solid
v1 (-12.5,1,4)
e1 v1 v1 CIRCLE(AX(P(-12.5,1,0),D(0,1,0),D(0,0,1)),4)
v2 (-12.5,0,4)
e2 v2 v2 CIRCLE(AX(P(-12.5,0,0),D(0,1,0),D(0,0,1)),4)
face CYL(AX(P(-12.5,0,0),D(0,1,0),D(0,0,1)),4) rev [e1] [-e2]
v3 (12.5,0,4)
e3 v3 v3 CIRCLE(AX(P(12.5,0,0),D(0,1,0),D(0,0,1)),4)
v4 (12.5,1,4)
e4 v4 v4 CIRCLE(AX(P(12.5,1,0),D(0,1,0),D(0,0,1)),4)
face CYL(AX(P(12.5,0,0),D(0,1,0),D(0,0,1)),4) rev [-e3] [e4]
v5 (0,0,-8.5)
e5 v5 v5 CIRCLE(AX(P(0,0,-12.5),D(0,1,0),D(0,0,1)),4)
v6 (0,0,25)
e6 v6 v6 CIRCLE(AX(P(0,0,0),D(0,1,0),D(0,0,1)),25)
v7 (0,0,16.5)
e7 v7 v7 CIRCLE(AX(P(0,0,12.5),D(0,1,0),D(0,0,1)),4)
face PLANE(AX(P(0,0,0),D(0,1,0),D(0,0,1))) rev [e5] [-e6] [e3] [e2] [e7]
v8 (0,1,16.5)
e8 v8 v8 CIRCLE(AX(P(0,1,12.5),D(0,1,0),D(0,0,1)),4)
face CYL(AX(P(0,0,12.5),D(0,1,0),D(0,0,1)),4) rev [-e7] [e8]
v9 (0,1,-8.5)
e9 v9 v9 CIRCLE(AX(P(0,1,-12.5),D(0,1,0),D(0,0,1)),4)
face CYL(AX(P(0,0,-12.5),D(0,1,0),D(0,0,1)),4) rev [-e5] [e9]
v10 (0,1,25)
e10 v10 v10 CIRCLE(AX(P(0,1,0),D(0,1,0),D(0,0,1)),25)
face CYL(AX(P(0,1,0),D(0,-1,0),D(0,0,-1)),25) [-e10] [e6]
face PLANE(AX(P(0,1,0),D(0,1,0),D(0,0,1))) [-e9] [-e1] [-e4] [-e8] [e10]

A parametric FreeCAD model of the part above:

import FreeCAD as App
import Part
import Sketcher

V = App.Vector
Q = App.Units.Quantity

doc = App.newDocument("Part")
body = doc.addObject("PartDesign::Body", "Body")

# Sketch on XZ plane
sketch1 = doc.addObject("Sketcher::SketchObject", "Sketch")
body.addObject(sketch1)
sketch1.AttachmentSupport = (doc.XZ_Plane, [""])
sketch1.MapMode = "FlatFace"
sketch1.addGeometry(Part.Circle(V(0, 0, 0), V(0, 0, 1), 25), False)
sketch1.addConstraint(Sketcher.Constraint("Coincident", 0, 3, -1, 1))
sketch1.addConstraint(Sketcher.Constraint("Diameter", 0, Q("50 mm")))
pad1 = doc.addObject("PartDesign::Pad", "Pad")
body.addObject(pad1)
pad1.Profile = sketch1
pad1.Length = 1
pad1.Reversed = True

# Sketch on XZ plane
sketch2 = doc.addObject("Sketcher::SketchObject", "Sketch001")
body.addObject(sketch2)
sketch2.AttachmentSupport = (doc.XZ_Plane, [""])
sketch2.MapMode = "FlatFace"
sketch2.AttachmentOffset = App.Placement(V(0, 0, -1), App.Rotation())
sketch2.addGeometry(Part.Circle(V(0, -12.5, 0), V(0, 0, 1), 4), False)
sketch2.addGeometry(Part.Circle(V(12.5, 0, 0), V(0, 0, 1), 4), False)
sketch2.addGeometry(Part.Circle(V(-12.5, 0, 0), V(0, 0, 1), 4), False)
sketch2.addGeometry(Part.Circle(V(0, 12.5, 0), V(0, 0, 1), 4), False)
sketch2.addConstraint(Sketcher.Constraint("Equal", 0, 1))
sketch2.addConstraint(Sketcher.Constraint("Equal", 1, 2))
sketch2.addConstraint(Sketcher.Constraint("Equal", 2, 3))
sketch2.addConstraint(Sketcher.Constraint("Symmetric", 1, 3, 2, 3, -1, 1))
sketch2.addConstraint(Sketcher.Constraint("Symmetric", 0, 3, 3, 3, -1, 1))
sketch2.addConstraint(Sketcher.Constraint("PointOnObject", 0, 3, -2))
sketch2.addConstraint(Sketcher.Constraint("PointOnObject", 1, 3, -1))
sketch2.addConstraint(Sketcher.Constraint("Diameter", 0, Q("8 mm")))
sketch2.addConstraint(Sketcher.Constraint("DistanceX", 2, 3, 1, 3, Q("25 mm")))
sketch2.addConstraint(Sketcher.Constraint("DistanceY", 0, 3, 3, 3, Q("25 mm")))
pocket1 = doc.addObject("PartDesign::Pocket", "Pocket")
body.addObject(pocket1)
pocket1.Profile = sketch2
pocket1.Length = 1
pocket1.Reversed = True

doc.recompute()
